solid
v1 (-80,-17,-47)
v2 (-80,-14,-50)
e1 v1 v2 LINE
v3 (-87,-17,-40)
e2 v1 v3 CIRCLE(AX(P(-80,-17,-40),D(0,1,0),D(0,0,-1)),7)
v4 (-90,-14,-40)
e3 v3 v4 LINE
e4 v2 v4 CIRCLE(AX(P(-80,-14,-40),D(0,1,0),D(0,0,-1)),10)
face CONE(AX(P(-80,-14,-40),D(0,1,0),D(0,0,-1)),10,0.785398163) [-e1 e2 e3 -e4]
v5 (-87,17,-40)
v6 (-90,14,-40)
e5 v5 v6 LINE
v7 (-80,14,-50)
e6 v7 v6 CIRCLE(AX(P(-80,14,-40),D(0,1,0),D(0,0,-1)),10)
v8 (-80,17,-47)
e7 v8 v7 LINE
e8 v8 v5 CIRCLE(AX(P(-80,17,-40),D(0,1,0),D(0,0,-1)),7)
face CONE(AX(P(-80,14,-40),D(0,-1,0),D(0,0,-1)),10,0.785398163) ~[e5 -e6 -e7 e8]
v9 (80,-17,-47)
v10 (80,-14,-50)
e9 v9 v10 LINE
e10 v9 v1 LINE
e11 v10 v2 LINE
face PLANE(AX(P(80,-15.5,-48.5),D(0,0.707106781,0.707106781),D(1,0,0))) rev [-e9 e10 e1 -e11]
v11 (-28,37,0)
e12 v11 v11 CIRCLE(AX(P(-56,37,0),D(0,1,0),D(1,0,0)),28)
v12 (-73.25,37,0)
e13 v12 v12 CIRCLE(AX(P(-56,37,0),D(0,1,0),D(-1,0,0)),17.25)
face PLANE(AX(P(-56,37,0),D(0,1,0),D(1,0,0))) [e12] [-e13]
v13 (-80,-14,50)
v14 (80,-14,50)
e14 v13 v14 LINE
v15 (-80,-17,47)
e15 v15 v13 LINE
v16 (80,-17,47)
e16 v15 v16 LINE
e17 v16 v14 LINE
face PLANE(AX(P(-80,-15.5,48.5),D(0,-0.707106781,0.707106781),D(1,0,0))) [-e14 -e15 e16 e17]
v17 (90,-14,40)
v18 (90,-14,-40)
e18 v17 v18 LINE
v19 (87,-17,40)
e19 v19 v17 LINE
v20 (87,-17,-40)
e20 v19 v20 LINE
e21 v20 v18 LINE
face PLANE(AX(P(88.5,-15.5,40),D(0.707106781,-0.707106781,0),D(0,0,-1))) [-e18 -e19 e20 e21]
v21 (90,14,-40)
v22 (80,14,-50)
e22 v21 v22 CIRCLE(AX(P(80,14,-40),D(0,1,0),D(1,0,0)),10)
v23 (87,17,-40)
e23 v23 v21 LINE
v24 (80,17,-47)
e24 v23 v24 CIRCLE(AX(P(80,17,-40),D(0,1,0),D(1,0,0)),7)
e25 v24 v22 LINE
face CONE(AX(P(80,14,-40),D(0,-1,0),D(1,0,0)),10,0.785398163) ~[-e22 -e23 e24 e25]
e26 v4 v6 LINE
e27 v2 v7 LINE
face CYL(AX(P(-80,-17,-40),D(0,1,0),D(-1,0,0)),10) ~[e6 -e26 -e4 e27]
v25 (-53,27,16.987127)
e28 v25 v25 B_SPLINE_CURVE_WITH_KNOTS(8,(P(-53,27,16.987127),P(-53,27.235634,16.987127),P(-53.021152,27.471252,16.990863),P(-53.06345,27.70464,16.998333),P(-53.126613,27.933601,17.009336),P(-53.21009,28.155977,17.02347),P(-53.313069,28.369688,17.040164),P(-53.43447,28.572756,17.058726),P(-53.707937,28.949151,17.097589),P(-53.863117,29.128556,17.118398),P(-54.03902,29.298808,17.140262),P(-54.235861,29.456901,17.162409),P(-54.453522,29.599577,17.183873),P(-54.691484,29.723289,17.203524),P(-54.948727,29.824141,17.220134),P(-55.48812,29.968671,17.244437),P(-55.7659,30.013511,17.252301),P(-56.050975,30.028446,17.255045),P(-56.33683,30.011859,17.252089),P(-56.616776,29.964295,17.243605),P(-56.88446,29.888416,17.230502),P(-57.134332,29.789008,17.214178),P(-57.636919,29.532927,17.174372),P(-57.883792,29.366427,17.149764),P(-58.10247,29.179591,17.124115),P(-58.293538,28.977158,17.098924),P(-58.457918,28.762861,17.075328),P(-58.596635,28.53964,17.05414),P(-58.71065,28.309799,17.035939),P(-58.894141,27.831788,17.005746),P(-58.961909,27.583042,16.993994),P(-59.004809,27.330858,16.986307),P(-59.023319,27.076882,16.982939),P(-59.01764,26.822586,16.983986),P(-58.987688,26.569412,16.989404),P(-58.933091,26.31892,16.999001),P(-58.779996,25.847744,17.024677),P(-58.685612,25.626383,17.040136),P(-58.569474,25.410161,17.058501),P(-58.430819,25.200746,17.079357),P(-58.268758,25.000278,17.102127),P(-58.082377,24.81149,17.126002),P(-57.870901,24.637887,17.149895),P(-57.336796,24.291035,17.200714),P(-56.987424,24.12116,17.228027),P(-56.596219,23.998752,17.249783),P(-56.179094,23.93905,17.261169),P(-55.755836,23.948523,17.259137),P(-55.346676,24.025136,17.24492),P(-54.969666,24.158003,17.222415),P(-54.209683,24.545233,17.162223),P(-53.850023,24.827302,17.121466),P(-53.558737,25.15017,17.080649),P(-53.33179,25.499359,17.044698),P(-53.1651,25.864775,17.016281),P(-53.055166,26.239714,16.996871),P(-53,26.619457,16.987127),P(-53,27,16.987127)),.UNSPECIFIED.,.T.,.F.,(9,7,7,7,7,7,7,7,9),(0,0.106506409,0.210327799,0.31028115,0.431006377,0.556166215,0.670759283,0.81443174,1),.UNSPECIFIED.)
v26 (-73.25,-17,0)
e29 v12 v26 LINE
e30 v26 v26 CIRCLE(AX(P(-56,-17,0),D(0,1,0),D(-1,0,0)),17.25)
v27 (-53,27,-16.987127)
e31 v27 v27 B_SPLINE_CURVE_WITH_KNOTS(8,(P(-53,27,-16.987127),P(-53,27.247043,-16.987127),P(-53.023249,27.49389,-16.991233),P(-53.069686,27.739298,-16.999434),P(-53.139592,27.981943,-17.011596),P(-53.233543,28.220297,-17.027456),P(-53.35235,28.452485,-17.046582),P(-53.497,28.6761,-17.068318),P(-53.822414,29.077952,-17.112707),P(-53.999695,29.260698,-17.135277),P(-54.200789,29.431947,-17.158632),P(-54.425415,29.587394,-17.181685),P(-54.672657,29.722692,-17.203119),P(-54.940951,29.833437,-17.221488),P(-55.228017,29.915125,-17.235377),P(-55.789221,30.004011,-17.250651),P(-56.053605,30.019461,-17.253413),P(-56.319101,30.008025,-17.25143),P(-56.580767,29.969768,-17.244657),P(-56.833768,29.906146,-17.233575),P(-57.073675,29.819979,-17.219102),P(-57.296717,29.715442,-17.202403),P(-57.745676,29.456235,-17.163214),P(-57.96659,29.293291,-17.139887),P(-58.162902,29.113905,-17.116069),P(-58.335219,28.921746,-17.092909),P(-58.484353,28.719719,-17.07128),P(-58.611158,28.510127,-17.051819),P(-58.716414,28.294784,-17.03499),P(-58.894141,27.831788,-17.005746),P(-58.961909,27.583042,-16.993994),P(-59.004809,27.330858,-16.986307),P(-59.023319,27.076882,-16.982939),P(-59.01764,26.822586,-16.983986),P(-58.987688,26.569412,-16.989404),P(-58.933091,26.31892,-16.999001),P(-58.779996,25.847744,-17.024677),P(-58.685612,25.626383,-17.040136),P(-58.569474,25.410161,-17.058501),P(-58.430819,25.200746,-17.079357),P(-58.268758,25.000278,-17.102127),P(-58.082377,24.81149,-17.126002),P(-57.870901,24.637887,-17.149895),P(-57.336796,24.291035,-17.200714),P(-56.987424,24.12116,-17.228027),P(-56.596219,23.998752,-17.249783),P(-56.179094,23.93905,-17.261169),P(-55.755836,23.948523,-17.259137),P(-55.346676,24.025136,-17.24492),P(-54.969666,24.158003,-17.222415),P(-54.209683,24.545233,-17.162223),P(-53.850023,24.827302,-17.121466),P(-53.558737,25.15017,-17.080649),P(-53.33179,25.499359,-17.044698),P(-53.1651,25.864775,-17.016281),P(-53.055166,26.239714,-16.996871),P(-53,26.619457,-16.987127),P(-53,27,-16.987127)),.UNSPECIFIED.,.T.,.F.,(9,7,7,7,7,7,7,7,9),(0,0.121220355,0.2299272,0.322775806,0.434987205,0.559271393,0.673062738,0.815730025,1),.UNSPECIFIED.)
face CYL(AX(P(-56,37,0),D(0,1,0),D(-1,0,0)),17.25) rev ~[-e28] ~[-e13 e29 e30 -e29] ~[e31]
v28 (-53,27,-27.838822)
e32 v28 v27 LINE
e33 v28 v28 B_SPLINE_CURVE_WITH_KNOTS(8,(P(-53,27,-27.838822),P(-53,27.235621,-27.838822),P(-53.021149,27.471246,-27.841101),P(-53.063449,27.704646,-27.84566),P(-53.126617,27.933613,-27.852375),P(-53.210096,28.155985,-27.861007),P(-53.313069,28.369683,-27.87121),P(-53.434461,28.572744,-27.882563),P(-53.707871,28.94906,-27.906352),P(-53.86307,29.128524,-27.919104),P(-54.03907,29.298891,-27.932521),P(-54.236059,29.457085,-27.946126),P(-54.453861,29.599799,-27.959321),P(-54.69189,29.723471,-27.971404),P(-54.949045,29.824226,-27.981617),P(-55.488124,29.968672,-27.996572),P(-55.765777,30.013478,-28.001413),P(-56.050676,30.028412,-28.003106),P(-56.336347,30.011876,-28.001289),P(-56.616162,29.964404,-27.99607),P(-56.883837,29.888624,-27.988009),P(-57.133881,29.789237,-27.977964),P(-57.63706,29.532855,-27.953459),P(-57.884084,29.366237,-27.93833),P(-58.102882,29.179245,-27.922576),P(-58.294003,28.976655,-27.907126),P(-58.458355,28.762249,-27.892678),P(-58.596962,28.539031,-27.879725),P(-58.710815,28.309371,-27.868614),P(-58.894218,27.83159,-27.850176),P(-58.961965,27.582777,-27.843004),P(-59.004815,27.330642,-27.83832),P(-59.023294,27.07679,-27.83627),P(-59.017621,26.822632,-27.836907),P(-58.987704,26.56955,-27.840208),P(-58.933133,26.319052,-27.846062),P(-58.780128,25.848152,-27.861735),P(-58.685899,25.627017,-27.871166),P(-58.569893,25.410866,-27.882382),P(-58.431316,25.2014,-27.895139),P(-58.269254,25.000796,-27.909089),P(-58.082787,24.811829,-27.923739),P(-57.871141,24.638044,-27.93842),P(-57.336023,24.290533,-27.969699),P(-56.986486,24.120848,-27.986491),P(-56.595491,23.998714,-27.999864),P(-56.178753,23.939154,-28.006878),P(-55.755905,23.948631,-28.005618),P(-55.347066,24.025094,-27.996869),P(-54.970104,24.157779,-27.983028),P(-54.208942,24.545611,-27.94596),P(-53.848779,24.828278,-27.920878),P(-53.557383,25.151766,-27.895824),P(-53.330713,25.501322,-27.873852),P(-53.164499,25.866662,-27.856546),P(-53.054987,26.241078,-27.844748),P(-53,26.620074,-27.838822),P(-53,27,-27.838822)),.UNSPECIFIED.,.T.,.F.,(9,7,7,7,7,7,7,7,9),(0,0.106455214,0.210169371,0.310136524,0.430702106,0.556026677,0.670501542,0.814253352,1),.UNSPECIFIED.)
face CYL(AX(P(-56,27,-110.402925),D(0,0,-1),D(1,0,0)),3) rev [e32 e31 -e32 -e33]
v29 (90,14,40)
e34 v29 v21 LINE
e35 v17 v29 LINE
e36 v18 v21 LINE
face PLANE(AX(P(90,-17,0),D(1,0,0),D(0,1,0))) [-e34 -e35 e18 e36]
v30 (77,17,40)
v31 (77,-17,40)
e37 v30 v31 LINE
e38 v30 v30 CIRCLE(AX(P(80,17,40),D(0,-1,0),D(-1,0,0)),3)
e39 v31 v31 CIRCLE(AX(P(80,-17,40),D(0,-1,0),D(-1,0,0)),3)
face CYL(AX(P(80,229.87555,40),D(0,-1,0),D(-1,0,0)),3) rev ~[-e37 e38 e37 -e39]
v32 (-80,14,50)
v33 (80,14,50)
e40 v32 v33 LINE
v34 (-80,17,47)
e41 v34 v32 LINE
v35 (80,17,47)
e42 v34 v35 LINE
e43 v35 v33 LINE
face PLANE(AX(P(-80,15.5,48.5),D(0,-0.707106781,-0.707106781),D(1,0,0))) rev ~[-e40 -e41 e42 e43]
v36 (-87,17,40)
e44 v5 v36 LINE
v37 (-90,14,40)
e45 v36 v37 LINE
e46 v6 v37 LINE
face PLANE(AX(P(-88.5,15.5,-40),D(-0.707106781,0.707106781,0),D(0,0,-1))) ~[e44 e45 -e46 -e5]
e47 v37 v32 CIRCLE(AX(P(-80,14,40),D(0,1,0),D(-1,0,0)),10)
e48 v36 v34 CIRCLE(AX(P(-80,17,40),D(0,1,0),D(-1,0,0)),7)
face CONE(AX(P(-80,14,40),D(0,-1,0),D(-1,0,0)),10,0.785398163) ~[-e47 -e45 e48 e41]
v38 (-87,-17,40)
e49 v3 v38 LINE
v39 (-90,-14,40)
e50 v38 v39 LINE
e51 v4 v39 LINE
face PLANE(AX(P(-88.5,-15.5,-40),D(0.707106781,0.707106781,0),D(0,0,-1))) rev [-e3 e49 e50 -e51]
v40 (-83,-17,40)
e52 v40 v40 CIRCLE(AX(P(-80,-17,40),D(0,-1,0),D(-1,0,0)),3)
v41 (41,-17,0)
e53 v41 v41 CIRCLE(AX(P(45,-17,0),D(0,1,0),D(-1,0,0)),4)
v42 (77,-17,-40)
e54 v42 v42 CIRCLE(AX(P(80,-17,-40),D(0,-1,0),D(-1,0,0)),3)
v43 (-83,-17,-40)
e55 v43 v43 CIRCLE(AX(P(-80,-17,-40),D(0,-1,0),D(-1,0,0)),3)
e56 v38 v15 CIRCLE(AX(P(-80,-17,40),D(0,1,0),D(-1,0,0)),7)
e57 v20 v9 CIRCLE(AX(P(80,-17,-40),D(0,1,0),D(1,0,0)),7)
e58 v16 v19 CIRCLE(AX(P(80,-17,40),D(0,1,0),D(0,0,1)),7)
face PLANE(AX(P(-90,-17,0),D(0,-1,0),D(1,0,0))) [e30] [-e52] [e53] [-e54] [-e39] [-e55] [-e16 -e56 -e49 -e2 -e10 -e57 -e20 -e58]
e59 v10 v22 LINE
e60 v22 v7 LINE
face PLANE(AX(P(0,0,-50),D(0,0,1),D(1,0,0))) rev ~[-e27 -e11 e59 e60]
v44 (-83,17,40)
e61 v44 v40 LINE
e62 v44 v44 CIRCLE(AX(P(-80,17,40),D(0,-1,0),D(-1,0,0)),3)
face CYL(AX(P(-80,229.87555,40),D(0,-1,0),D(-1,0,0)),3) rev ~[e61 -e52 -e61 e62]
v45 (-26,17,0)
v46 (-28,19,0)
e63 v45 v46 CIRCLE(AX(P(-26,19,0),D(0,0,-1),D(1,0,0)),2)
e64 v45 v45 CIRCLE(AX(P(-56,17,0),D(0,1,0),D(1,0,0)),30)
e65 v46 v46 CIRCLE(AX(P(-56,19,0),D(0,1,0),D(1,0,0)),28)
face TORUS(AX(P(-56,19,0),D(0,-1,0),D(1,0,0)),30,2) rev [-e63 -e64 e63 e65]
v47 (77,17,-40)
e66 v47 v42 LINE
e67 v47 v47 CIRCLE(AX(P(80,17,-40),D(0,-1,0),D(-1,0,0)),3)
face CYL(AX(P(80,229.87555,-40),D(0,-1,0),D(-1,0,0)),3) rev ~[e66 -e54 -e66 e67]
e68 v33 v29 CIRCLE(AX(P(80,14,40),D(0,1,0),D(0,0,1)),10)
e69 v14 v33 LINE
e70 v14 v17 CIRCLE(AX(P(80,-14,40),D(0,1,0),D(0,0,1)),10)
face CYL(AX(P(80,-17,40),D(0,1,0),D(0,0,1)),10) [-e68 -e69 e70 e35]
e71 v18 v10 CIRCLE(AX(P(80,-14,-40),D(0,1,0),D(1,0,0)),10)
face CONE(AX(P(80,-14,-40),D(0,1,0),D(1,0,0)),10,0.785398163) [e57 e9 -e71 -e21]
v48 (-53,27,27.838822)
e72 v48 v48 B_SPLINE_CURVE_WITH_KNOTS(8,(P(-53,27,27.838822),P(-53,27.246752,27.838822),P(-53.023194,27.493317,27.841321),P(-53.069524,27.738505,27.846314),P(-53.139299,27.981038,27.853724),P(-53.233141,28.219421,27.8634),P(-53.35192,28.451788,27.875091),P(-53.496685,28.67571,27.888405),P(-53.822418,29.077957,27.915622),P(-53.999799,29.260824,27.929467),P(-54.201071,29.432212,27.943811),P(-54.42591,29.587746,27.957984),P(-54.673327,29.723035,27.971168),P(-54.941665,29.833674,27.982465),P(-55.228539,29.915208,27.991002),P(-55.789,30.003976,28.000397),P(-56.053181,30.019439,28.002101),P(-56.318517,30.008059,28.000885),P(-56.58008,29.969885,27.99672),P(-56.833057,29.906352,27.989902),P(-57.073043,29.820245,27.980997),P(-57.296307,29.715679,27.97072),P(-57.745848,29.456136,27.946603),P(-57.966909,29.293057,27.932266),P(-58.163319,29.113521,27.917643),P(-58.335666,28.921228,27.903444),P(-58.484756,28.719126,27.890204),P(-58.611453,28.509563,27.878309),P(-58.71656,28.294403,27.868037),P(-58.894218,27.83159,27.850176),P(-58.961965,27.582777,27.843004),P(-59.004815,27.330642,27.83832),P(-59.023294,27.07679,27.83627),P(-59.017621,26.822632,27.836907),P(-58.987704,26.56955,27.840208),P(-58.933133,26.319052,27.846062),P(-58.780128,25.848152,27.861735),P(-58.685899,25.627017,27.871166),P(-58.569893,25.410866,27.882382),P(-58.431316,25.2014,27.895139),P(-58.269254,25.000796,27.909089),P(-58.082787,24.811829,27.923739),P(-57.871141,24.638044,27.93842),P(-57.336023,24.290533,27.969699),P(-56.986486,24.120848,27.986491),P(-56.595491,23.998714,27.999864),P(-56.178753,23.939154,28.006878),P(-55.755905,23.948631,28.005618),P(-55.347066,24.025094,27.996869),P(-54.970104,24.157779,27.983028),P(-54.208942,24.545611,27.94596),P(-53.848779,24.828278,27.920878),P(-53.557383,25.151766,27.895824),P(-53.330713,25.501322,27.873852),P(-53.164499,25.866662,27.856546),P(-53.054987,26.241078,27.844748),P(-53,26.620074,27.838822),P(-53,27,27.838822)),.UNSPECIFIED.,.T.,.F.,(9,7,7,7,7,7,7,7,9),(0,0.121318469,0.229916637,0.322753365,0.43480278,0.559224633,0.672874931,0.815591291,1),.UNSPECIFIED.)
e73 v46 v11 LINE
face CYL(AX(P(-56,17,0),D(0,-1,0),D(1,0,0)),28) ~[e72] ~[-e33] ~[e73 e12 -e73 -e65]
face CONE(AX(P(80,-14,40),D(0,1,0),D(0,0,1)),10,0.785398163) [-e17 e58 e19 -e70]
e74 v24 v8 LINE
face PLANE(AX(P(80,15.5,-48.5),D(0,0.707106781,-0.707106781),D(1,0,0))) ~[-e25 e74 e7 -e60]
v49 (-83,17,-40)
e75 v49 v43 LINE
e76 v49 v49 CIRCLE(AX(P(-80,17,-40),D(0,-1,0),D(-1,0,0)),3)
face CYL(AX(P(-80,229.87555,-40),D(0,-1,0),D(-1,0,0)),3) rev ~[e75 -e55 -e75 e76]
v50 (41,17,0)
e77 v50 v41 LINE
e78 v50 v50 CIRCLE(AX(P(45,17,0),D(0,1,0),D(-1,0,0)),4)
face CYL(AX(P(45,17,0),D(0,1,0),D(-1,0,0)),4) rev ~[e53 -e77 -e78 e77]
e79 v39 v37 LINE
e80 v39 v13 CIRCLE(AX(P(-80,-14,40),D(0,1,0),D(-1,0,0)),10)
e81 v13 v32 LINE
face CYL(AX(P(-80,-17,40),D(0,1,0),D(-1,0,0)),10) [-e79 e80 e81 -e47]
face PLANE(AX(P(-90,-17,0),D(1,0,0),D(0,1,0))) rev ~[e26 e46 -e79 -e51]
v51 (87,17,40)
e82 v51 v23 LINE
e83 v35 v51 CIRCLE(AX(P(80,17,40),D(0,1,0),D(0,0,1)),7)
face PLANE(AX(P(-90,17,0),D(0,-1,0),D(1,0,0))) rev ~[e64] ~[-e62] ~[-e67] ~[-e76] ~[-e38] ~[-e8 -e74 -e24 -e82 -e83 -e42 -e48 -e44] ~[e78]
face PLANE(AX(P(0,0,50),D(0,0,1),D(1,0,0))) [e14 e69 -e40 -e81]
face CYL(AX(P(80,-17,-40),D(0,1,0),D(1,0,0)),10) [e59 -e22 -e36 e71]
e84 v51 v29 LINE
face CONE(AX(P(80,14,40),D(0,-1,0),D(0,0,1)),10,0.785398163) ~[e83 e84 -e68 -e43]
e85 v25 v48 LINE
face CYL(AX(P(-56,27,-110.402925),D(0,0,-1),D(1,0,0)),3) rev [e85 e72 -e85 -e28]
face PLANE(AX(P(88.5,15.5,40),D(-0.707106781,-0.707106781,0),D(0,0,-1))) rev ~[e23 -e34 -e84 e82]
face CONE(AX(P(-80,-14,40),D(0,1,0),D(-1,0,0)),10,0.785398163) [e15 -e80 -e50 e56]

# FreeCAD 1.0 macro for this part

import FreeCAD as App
import Part
import Sketcher
Q = App.Units.Quantity


def edges_at(feature, points):
    """Names of the edges that pass closest to the given points."""
    edges = feature.Shape.Edges
    near = lambda p: min(range(len(edges)), key=lambda i: edges[i].distToShape(Part.Vertex(*p))[0])
    return sorted({f"Edge{near(p) + 1}" for p in points})


def add_polygon(sketch, points):
    """Adds a closed chain of lines whose ends are joined by coincident constraints."""
    first, n = sketch.GeometryCount, len(points)
    for a, b in zip(points, points[1:] + points[:1]):
        sketch.addGeometry(Part.LineSegment(App.Vector(*a, 0), App.Vector(*b, 0)), False)
    for i in range(n):
        sketch.addConstraint(Sketcher.Constraint("Coincident", first + i, 2, first + (i + 1) % n, 1))

doc = App.newDocument("Part")
body = doc.addObject("PartDesign::Body", "Body")

sketch1 = body.newObject("Sketcher::SketchObject", "Sketch")
sketch1.AttachmentSupport = (doc.getObject("XY_Plane"), [""])
sketch1.MapMode = "FlatFace"
add_polygon(sketch1, [(-90, 17), (-90, -17), (90, -17), (90, 17)])
sketch1.addConstraint([
    Sketcher.Constraint("Vertical", 0),
    Sketcher.Constraint("Horizontal", 1),
    Sketcher.Constraint("Vertical", 2),
    Sketcher.Constraint("Horizontal", 3),
    Sketcher.Constraint("Symmetric", 0, 2, 2, 2, -1, 1),
    Sketcher.Constraint("DistanceX", 1, 1, 1, 2, Q("180 mm")),
    Sketcher.Constraint("DistanceY", 0, 2, 0, 1, Q("34 mm")),
])
pad1 = body.newObject("PartDesign::Pad", "Pad")
pad1.Profile = sketch1
pad1.Length = 100
pad1.Midplane = True
doc.recompute()

fillet = body.newObject("PartDesign::Fillet", "Fillet")
fillet.Base = (pad1, edges_at(pad1, [
    (90, 0, 50),
    (-90, 0, 50),
    (90, 0, -50),
    (-90, 0, -50),
]))
fillet.Radius = 10
doc.recompute()

chamfer = body.newObject("PartDesign::Chamfer", "Chamfer")
chamfer.Base = (fillet, edges_at(fillet, [
    (0, -17, 50),
    (0, 17, 50),
    (0, -17, -50),
    (90, -17, 0),
    (-90, -17, 0),
    (87.071, -17, 47.071),
    (87.071, -17, -47.071),
    (-87.071, -17, -47.071),
    (-87.071, -17, 47.071),
    (-90, 17, 0),
    (0, 17, -50),
    (90, 17, 0),
    (87.071, 17, 47.071),
    (87.071, 17, -47.071),
    (-87.071, 17, -47.071),
    (-87.071, 17, 47.071),
]))
chamfer.Size = 3

sketch2 = body.newObject("Sketcher::SketchObject", "Sketch001")
sketch2.AttachmentSupport = (doc.getObject("XZ_Plane"), [""])
sketch2.MapMode = "FlatFace"
sketch2.AttachmentOffset = App.Placement(App.Vector(0, 0, -17), App.Rotation())
sketch2.addGeometry(Part.Circle(App.Vector(-56, 0, 0), App.Vector(0, 0, 1), 28), False)
sketch2.addConstraint([
    Sketcher.Constraint("PointOnObject", 0, 3, -1),
    Sketcher.Constraint("Diameter", 0, Q("56 mm")),
    Sketcher.Constraint("DistanceX", 0, 3, -1, 1, Q("56 mm")),
])
pad2 = body.newObject("PartDesign::Pad", "Pad001")
pad2.Profile = sketch2
pad2.Length = 20
pad2.Reversed = True

sketch3 = body.newObject("Sketcher::SketchObject", "Sketch002")
sketch3.AttachmentSupport = (doc.getObject("XZ_Plane"), [""])
sketch3.MapMode = "FlatFace"
sketch3.AttachmentOffset = App.Placement(App.Vector(0, 0, -37), App.Rotation())
sketch3.addGeometry(Part.Circle(App.Vector(-56, 0, 0), App.Vector(0, 0, 1), 17), False)
sketch3.addConstraint([
    Sketcher.Constraint("PointOnObject", 0, 3, -1),
    Sketcher.Constraint("Diameter", 0, Q("34.5 mm")),
    Sketcher.Constraint("DistanceX", 0, 3, -1, 1, Q("56 mm")),
])
pocket1 = body.newObject("PartDesign::Pocket", "Pocket")
pocket1.Profile = sketch3
pocket1.Type = "ThroughAll"
pocket1.Reversed = True

sketch4 = body.newObject("Sketcher::SketchObject", "Sketch003")
sketch4.AttachmentSupport = (doc.getObject("XZ_Plane"), [""])
sketch4.MapMode = "FlatFace"
sketch4.AttachmentOffset = App.Placement(App.Vector(0, 0, -17), App.Rotation())
sketch4.addGeometry(Part.Circle(App.Vector(45, 0, 0), App.Vector(0, 0, 1), 4), False)
sketch4.addConstraint([
    Sketcher.Constraint("PointOnObject", 0, 3, -1),
    Sketcher.Constraint("Diameter", 0, Q("8 mm")),
    Sketcher.Constraint("DistanceX", -1, 1, 0, 3, Q("45 mm")),
])
pocket2 = body.newObject("PartDesign::Pocket", "Pocket001")
pocket2.Profile = sketch4
pocket2.Type = "ThroughAll"
pocket2.Reversed = True
doc.recompute()

fillet2 = body.newObject("PartDesign::Fillet", "Fillet001")
fillet2.Base = (pocket2, edges_at(pocket2, [(-84, 17, 0)]))
fillet2.Radius = 2

sketch5 = body.newObject("Sketcher::SketchObject", "Sketch004")
sketch5.AttachmentSupport = (doc.getObject("XZ_Plane"), [""])
sketch5.MapMode = "FlatFace"
sketch5.AttachmentOffset = App.Placement(App.Vector(0, 0, -17), App.Rotation())
sketch5.addGeometry([
    Part.Circle(App.Vector(80, 40, 0), App.Vector(0, 0, 1), 3),
    Part.Circle(App.Vector(-80, 40, 0), App.Vector(0, 0, 1), 3),
    Part.Circle(App.Vector(80, -40, 0), App.Vector(0, 0, 1), 3),
    Part.Circle(App.Vector(-80, -40, 0), App.Vector(0, 0, 1), 3),
], False)
sketch5.addConstraint([
    Sketcher.Constraint("Equal", 0, 1),
    Sketcher.Constraint("Equal", 1, 2),
    Sketcher.Constraint("Equal", 2, 3),
    Sketcher.Constraint("Symmetric", 1, 3, 2, 3, -1, 1),
    Sketcher.Constraint("Symmetric", 0, 3, 3, 3, -1, 1),
    Sketcher.Constraint("Symmetric", 0, 3, 1, 3, -2),
    Sketcher.Constraint("Diameter", 0, Q("6 mm")),
    Sketcher.Constraint("DistanceX", -1, 1, 0, 3, Q("80 mm")),
    Sketcher.Constraint("DistanceY", -1, 1, 0, 3, Q("40 mm")),
])
doc.recompute()
hole = body.newObject("PartDesign::Hole", "Hole")
hole.Profile = sketch5
hole.ThreadType = "None"
hole.Diameter = 6
hole.DepthType = "ThroughAll"
hole.Reversed = True

sketch6 = body.newObject("Sketcher::SketchObject", "Sketch005")
sketch6.AttachmentSupport = (doc.getObject("XY_Plane"), [""])
sketch6.MapMode = "FlatFace"
sketch6.addGeometry(Part.Circle(App.Vector(-56, 27, 0), App.Vector(0, 0, 1), 3), False)
sketch6.addConstraint([
    Sketcher.Constraint("Diameter", 0, Q("6 mm")),
    Sketcher.Constraint("DistanceX", 0, 3, -1, 1, Q("56 mm")),
    Sketcher.Constraint("DistanceY", -1, 1, 0, 3, Q("27 mm")),
])
pocket3 = body.newObject("PartDesign::Pocket", "Pocket002")
pocket3.Profile = sketch6
pocket3.Type = "ThroughAll"
pocket3.Midplane = True

doc.recompute()
